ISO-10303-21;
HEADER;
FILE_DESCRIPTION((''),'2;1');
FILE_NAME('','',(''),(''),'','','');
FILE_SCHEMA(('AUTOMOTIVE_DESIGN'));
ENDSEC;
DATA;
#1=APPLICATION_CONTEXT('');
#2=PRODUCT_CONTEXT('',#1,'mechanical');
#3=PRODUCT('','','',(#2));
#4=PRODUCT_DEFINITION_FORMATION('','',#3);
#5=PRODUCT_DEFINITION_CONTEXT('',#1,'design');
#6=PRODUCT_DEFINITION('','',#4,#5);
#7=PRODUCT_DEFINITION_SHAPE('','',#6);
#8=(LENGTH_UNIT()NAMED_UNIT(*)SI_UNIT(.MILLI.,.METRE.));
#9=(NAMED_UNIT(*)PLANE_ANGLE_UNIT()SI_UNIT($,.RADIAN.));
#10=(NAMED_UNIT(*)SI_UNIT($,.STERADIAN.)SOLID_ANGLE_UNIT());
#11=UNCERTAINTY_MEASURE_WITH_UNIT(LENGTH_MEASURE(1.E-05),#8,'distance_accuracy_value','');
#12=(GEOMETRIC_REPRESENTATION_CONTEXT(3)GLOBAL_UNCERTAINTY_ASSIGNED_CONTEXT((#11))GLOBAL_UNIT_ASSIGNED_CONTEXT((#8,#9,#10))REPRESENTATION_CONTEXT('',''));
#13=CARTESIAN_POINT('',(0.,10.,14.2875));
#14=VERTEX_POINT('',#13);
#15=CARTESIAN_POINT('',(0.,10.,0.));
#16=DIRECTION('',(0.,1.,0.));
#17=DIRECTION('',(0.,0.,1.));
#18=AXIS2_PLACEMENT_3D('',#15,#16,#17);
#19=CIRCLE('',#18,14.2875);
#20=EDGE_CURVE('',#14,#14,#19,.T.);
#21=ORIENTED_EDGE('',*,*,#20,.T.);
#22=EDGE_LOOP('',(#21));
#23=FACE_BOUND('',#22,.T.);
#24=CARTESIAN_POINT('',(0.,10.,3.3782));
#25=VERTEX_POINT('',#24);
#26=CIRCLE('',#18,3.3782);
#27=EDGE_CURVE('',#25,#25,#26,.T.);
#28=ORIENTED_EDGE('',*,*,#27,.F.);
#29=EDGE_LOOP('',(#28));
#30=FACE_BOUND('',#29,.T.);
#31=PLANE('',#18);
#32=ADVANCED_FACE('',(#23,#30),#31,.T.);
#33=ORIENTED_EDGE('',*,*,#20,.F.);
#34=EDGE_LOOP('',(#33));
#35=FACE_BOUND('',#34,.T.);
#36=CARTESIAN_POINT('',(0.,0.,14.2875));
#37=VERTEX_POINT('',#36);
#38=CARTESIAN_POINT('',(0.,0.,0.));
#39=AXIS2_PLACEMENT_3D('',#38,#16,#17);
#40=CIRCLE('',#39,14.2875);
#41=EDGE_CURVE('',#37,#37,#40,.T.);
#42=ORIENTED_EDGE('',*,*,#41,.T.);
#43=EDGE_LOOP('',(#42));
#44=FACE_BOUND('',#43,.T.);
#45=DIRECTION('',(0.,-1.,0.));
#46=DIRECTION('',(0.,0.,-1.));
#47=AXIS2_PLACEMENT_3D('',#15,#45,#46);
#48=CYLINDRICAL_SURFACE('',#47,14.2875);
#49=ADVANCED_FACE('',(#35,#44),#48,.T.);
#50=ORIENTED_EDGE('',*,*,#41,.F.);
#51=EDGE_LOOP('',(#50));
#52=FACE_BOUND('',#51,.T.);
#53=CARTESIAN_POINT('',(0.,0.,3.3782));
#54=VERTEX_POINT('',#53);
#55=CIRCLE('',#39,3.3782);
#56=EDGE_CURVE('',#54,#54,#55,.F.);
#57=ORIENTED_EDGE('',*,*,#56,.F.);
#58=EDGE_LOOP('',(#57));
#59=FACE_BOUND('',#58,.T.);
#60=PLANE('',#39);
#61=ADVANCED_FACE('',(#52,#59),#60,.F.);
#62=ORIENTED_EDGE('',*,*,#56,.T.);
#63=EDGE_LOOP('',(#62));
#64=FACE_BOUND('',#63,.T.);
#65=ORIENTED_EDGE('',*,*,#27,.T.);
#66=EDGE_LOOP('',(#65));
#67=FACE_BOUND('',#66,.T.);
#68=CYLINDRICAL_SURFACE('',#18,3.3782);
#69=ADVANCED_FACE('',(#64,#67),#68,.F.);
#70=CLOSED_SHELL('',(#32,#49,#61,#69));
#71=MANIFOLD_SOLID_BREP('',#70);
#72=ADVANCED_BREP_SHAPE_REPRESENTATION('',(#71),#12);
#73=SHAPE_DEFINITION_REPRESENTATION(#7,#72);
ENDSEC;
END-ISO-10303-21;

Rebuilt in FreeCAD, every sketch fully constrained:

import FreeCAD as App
import Part
import Sketcher
from FreeCAD import Vector
Q = App.Units.Quantity

doc = App.newDocument("Part")
body = doc.addObject("PartDesign::Body", "Body")

sketch1 = body.newObject("Sketcher::SketchObject", "Sketch")
sketch1.AttachmentSupport = (doc.getObject("XZ_Plane"), [""])
sketch1.MapMode = "FlatFace"
sketch1.addGeometry(Part.Circle(Vector(0, 0, 0), Vector(0, 0, 1), 14), False)
sketch1.addConstraint([
    Sketcher.Constraint("Coincident", 0, 3, -1, 1),
    Sketcher.Constraint("Diameter", 0, Q("1.125 in")),
])
pad1 = body.newObject("PartDesign::Pad", "Pad")
pad1.Profile = sketch1
pad1.Length = 10
pad1.Reversed = True

sketch2 = body.newObject("Sketcher::SketchObject", "Sketch001")
sketch2.AttachmentSupport = (doc.getObject("XZ_Plane"), [""])
sketch2.MapMode = "FlatFace"
sketch2.AttachmentOffset = App.Placement(Vector(0, 0, -10), App.Rotation())
sketch2.addGeometry(Part.Circle(Vector(0, 0, 0), Vector(0, 0, 1), 3.4), False)
sketch2.addConstraint([
    Sketcher.Constraint("Coincident", 0, 3, -1, 1),
    Sketcher.Constraint("Diameter", 0, Q("0.266 in")),
])
doc.recompute()
hole = body.newObject("PartDesign::Hole", "Hole")
hole.Profile = sketch2
hole.ThreadType = "None"
hole.Diameter = Q("0.266 in")
hole.DepthType = "Dimension"
hole.Depth = 10
hole.DrillPoint = "Angled"
hole.DrillPointAngle = 118
hole.Reversed = True

doc.recompute()
